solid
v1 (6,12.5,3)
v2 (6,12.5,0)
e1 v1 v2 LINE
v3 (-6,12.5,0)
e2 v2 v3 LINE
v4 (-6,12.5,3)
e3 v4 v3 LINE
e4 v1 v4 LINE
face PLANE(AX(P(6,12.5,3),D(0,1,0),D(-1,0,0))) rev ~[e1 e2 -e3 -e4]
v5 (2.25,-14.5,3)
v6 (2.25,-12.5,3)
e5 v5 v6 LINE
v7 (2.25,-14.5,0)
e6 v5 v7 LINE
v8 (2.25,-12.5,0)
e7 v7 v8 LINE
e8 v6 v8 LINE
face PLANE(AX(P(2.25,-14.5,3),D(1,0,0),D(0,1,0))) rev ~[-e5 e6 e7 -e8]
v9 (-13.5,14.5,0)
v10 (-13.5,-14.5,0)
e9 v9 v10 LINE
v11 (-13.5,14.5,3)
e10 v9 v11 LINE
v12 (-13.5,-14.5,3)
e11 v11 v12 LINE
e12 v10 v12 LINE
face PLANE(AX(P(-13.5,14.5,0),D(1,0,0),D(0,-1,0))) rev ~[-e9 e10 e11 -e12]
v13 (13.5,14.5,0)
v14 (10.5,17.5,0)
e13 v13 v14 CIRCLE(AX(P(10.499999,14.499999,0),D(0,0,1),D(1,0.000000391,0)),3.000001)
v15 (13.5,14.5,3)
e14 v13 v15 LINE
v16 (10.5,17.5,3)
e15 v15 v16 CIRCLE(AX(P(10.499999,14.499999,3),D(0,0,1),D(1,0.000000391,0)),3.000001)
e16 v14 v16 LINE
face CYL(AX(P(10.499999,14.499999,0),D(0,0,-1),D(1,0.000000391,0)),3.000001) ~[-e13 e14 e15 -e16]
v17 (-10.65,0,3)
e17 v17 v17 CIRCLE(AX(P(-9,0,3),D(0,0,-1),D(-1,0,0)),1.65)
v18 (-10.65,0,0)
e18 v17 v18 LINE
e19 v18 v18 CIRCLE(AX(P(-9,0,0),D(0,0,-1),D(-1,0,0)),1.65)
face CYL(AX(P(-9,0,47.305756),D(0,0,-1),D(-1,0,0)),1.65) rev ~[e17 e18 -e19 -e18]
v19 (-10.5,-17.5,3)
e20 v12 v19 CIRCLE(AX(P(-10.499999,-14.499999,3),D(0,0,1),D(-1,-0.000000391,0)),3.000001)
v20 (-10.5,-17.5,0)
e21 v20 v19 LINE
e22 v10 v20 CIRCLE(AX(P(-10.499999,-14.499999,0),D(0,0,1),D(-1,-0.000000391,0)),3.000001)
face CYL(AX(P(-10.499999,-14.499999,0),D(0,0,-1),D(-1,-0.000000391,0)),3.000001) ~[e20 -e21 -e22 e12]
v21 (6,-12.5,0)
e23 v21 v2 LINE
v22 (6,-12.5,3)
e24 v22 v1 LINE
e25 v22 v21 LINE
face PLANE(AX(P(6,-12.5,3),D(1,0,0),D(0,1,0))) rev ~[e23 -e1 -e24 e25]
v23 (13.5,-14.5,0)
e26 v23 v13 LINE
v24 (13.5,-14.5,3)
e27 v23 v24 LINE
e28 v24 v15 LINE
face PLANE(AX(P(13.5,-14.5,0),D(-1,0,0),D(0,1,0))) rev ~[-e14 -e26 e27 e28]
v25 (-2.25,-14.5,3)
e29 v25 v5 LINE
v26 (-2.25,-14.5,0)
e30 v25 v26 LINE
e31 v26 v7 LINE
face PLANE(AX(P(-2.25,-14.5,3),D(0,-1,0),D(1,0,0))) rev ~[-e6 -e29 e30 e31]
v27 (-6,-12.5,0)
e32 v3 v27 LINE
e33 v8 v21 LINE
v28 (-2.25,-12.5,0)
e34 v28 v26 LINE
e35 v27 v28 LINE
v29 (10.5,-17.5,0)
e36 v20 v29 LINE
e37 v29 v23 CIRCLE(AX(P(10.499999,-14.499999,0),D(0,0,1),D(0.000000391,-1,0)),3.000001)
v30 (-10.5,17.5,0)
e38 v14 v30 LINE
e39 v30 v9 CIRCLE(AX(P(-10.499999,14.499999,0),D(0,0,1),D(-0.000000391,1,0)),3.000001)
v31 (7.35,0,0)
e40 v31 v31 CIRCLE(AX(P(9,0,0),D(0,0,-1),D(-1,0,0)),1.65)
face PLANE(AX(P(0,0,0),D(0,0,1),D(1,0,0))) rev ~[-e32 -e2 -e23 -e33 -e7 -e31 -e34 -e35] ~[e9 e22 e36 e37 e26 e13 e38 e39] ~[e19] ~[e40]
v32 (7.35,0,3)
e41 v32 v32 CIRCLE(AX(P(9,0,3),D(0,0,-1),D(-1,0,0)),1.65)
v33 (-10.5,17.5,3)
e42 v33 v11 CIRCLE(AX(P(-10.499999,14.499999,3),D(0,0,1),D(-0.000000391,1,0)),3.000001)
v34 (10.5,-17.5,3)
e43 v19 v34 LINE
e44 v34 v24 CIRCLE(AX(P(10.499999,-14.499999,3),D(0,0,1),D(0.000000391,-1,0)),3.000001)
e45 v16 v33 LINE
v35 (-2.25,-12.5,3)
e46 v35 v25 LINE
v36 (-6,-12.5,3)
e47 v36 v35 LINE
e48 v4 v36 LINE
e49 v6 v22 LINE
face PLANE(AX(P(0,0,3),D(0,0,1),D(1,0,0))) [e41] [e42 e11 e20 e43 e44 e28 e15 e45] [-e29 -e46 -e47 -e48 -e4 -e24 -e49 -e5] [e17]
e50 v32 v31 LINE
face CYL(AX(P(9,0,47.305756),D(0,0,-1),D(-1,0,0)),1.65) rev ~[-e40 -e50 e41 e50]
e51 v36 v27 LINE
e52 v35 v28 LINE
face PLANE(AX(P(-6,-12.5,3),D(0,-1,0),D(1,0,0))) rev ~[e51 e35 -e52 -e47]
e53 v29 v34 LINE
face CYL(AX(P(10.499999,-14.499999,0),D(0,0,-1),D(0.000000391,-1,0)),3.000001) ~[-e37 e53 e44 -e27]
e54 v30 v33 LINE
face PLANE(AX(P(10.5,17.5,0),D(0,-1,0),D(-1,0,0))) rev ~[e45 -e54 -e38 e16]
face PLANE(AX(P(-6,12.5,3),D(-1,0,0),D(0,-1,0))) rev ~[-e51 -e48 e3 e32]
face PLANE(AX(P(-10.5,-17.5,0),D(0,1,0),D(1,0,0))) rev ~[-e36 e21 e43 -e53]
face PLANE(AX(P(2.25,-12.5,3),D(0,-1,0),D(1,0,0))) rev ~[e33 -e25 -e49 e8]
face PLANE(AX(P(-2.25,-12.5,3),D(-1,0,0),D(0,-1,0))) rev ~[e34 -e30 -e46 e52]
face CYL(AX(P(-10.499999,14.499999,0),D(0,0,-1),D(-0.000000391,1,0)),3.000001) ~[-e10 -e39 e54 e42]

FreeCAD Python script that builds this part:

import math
import FreeCAD as App
import Part
import Sketcher
Q = App.Units.Quantity


def add_polygon(sketch, points):
    """Adds a closed chain of lines whose ends are joined by coincident constraints."""
    first, n = sketch.GeometryCount, len(points)
    for a, b in zip(points, points[1:] + points[:1]):
        sketch.addGeometry(Part.LineSegment(App.Vector(*a, 0), App.Vector(*b, 0)), False)
    for i in range(n):
        sketch.addConstraint(Sketcher.Constraint("Coincident", first + i, 2, first + (i + 1) % n, 1))

doc = App.newDocument("Part")
body = doc.addObject("PartDesign::Body", "Body")

# Sketch on XY plane
sketch1 = body.newObject("Sketcher::SketchObject", "Sketch")
sketch1.AttachmentSupport = (doc.getObject("XY_Plane"), [""])
sketch1.MapMode = "FlatFace"
sketch1.addGeometry([
    Part.LineSegment(App.Vector(10.5, 17.5, 0), App.Vector(-10.5, 17.5, 0)),  # 0
    Part.ArcOfCircle(Part.Circle(App.Vector(-10.499999, 14.499999, 0), App.Vector(0, 0, 1), 3.000001), math.radians(90.000022), math.radians(179.999978)),  # 1
    Part.LineSegment(App.Vector(-13.5, 14.5, 0), App.Vector(-13.5, -14.5, 0)),  # 2
    Part.ArcOfCircle(Part.Circle(App.Vector(-10.499999, -14.499999, 0), App.Vector(0, 0, 1), 3.000001), math.radians(-179.999978), math.radians(-90.000022)),  # 3
    Part.LineSegment(App.Vector(-10.5, -17.5, 0), App.Vector(10.5, -17.5, 0)),  # 4
    Part.ArcOfCircle(Part.Circle(App.Vector(10.499999, -14.499999, 0), App.Vector(0, 0, 1), 3.000001), math.radians(-89.999978), math.radians(-0.000022)),  # 5
    Part.LineSegment(App.Vector(13.5, -14.5, 0), App.Vector(13.5, 14.5, 0)),  # 6
    Part.ArcOfCircle(Part.Circle(App.Vector(10.499999, 14.499999, 0), App.Vector(0, 0, 1), 3.000001), math.radians(0.000022), math.radians(89.999978)),  # 7
], False)
sketch1.addConstraint([
    Sketcher.Constraint("Tangent", 0, 2, 1, 1),
    Sketcher.Constraint("Tangent", 1, 2, 2, 1),
    Sketcher.Constraint("Tangent", 2, 2, 3, 1),
    Sketcher.Constraint("Tangent", 3, 2, 4, 1),
    Sketcher.Constraint("Tangent", 4, 2, 5, 1),
    Sketcher.Constraint("Tangent", 5, 2, 6, 1),
    Sketcher.Constraint("Tangent", 6, 2, 7, 1),
    Sketcher.Constraint("Tangent", 7, 2, 0, 1),
    Sketcher.Constraint("Horizontal", 0),
    Sketcher.Constraint("Vertical", 2),
    Sketcher.Constraint("Horizontal", 4),
    Sketcher.Constraint("Vertical", 6),
    Sketcher.Constraint("Equal", 1, 3),
    Sketcher.Constraint("Equal", 3, 5),
    Sketcher.Constraint("Equal", 5, 7),
    Sketcher.Constraint("Symmetric", 1, 3, 5, 3, -1, 1),
    Sketcher.Constraint("Radius", 1, Q("3.000001 mm")),
    Sketcher.Constraint("DistanceX", 0, 2, 0, 1, Q("21 mm")),
    Sketcher.Constraint("DistanceY", 2, 2, 2, 1, Q("29 mm")),
])
pad1 = body.newObject("PartDesign::Pad", "Pad")
pad1.Profile = sketch1
pad1.Length = 3

# Sketch on XY plane
sketch2 = body.newObject("Sketcher::SketchObject", "Sketch001")
sketch2.AttachmentSupport = (doc.getObject("XY_Plane"), [""])
sketch2.MapMode = "FlatFace"
sketch2.AttachmentOffset = App.Placement(App.Vector(0, 0, 3), App.Rotation())
sketch2.addGeometry([
    Part.Circle(App.Vector(-9, 0, 0), App.Vector(0, 0, 1), 1.65),
    Part.Circle(App.Vector(9, 0, 0), App.Vector(0, 0, 1), 1.65),
], False)
sketch2.addConstraint([
    Sketcher.Constraint("Equal", 0, 1),
    Sketcher.Constraint("Symmetric", 0, 3, 1, 3, -1, 1),
    Sketcher.Constraint("PointOnObject", 0, 3, -1),
    Sketcher.Constraint("Diameter", 0, Q("3.3 mm")),
    Sketcher.Constraint("DistanceX", 0, 3, -1, 1, Q("9 mm")),
])
doc.recompute()
hole = body.newObject("PartDesign::Hole", "Hole")
hole.Profile = sketch2
hole.ThreadType = "None"
hole.Diameter = 3.3
hole.DepthType = "ThroughAll"

# Sketch on XY plane
sketch3 = body.newObject("Sketcher::SketchObject", "Sketch002")
sketch3.AttachmentSupport = (doc.getObject("XY_Plane"), [""])
sketch3.MapMode = "FlatFace"
sketch3.AttachmentOffset = App.Placement(App.Vector(0, 0, 3), App.Rotation())
add_polygon(sketch3, [(6, 12.5), (-6, 12.5), (-6, -12.5), (-2.25, -12.5), (-2.25, -14.5), (2.25, -14.5), (2.25, -12.5), (6, -12.5)])  # lines 0-7
sketch3.addConstraint([
    Sketcher.Constraint("Horizontal", 0),
    Sketcher.Constraint("Vertical", 1),
    Sketcher.Constraint("Horizontal", 2),
    Sketcher.Constraint("Vertical", 3),
    Sketcher.Constraint("Horizontal", 4),
    Sketcher.Constraint("Vertical", 5),
    Sketcher.Constraint("Horizontal", 6),
    Sketcher.Constraint("Vertical", 7),
    Sketcher.Constraint("Symmetric", 0, 2, 6, 2, -1, 1),
    Sketcher.Constraint("Symmetric", 2, 2, 5, 2, -2),
    Sketcher.Constraint("DistanceX", 0, 2, 0, 1, Q("12 mm")),
    Sketcher.Constraint("DistanceY", 1, 2, 1, 1, Q("25 mm")),
    Sketcher.Constraint("DistanceY", 3, 2, 3, 1, Q("2 mm")),
    Sketcher.Constraint("DistanceX", 4, 1, 4, 2, Q("4.5 mm")),
])
pocket1 = body.newObject("PartDesign::Pocket", "Pocket")
pocket1.Profile = sketch3
pocket1.Length = 25

doc.recompute()
